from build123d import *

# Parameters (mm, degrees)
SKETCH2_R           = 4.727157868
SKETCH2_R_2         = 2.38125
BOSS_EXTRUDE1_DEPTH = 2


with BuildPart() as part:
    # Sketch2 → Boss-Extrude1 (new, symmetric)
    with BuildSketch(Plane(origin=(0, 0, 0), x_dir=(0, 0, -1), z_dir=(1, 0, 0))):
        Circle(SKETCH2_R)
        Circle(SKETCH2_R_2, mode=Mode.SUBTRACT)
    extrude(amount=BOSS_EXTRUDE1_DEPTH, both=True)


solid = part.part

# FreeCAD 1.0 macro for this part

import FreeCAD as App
import Part
import Sketcher
from FreeCAD import Vector

doc = App.newDocument("Part")
body = doc.addObject("PartDesign::Body", "Body")

# Sketch on YZ plane
sketch1 = body.newObject("Sketcher::SketchObject", "Sketch")
sketch1.AttachmentSupport = (doc.getObject("YZ_Plane"), [""])
sketch1.MapMode = "FlatFace"
sketch1.addGeometry([
    Part.Circle(Vector(0, 0, 0), Vector(0, 0, 1), 4.7),
    Part.Circle(Vector(0, 0, 0), Vector(0, 0, 1), 2.4),
], False)
sketch1.addConstraint([
    Sketcher.Constraint("Coincident", 0, 3, -1, 1),
    Sketcher.Constraint("Coincident", 1, 3, -1, 1),
    Sketcher.Constraint("Diameter", 1, 4.7625),
    Sketcher.Constraint("Diameter", 0, 9.454316),
])
pad1 = body.newObject("PartDesign::Pad", "Pad")
pad1.Profile = sketch1
pad1.Length = 4
pad1.Midplane = True

doc.recompute()
